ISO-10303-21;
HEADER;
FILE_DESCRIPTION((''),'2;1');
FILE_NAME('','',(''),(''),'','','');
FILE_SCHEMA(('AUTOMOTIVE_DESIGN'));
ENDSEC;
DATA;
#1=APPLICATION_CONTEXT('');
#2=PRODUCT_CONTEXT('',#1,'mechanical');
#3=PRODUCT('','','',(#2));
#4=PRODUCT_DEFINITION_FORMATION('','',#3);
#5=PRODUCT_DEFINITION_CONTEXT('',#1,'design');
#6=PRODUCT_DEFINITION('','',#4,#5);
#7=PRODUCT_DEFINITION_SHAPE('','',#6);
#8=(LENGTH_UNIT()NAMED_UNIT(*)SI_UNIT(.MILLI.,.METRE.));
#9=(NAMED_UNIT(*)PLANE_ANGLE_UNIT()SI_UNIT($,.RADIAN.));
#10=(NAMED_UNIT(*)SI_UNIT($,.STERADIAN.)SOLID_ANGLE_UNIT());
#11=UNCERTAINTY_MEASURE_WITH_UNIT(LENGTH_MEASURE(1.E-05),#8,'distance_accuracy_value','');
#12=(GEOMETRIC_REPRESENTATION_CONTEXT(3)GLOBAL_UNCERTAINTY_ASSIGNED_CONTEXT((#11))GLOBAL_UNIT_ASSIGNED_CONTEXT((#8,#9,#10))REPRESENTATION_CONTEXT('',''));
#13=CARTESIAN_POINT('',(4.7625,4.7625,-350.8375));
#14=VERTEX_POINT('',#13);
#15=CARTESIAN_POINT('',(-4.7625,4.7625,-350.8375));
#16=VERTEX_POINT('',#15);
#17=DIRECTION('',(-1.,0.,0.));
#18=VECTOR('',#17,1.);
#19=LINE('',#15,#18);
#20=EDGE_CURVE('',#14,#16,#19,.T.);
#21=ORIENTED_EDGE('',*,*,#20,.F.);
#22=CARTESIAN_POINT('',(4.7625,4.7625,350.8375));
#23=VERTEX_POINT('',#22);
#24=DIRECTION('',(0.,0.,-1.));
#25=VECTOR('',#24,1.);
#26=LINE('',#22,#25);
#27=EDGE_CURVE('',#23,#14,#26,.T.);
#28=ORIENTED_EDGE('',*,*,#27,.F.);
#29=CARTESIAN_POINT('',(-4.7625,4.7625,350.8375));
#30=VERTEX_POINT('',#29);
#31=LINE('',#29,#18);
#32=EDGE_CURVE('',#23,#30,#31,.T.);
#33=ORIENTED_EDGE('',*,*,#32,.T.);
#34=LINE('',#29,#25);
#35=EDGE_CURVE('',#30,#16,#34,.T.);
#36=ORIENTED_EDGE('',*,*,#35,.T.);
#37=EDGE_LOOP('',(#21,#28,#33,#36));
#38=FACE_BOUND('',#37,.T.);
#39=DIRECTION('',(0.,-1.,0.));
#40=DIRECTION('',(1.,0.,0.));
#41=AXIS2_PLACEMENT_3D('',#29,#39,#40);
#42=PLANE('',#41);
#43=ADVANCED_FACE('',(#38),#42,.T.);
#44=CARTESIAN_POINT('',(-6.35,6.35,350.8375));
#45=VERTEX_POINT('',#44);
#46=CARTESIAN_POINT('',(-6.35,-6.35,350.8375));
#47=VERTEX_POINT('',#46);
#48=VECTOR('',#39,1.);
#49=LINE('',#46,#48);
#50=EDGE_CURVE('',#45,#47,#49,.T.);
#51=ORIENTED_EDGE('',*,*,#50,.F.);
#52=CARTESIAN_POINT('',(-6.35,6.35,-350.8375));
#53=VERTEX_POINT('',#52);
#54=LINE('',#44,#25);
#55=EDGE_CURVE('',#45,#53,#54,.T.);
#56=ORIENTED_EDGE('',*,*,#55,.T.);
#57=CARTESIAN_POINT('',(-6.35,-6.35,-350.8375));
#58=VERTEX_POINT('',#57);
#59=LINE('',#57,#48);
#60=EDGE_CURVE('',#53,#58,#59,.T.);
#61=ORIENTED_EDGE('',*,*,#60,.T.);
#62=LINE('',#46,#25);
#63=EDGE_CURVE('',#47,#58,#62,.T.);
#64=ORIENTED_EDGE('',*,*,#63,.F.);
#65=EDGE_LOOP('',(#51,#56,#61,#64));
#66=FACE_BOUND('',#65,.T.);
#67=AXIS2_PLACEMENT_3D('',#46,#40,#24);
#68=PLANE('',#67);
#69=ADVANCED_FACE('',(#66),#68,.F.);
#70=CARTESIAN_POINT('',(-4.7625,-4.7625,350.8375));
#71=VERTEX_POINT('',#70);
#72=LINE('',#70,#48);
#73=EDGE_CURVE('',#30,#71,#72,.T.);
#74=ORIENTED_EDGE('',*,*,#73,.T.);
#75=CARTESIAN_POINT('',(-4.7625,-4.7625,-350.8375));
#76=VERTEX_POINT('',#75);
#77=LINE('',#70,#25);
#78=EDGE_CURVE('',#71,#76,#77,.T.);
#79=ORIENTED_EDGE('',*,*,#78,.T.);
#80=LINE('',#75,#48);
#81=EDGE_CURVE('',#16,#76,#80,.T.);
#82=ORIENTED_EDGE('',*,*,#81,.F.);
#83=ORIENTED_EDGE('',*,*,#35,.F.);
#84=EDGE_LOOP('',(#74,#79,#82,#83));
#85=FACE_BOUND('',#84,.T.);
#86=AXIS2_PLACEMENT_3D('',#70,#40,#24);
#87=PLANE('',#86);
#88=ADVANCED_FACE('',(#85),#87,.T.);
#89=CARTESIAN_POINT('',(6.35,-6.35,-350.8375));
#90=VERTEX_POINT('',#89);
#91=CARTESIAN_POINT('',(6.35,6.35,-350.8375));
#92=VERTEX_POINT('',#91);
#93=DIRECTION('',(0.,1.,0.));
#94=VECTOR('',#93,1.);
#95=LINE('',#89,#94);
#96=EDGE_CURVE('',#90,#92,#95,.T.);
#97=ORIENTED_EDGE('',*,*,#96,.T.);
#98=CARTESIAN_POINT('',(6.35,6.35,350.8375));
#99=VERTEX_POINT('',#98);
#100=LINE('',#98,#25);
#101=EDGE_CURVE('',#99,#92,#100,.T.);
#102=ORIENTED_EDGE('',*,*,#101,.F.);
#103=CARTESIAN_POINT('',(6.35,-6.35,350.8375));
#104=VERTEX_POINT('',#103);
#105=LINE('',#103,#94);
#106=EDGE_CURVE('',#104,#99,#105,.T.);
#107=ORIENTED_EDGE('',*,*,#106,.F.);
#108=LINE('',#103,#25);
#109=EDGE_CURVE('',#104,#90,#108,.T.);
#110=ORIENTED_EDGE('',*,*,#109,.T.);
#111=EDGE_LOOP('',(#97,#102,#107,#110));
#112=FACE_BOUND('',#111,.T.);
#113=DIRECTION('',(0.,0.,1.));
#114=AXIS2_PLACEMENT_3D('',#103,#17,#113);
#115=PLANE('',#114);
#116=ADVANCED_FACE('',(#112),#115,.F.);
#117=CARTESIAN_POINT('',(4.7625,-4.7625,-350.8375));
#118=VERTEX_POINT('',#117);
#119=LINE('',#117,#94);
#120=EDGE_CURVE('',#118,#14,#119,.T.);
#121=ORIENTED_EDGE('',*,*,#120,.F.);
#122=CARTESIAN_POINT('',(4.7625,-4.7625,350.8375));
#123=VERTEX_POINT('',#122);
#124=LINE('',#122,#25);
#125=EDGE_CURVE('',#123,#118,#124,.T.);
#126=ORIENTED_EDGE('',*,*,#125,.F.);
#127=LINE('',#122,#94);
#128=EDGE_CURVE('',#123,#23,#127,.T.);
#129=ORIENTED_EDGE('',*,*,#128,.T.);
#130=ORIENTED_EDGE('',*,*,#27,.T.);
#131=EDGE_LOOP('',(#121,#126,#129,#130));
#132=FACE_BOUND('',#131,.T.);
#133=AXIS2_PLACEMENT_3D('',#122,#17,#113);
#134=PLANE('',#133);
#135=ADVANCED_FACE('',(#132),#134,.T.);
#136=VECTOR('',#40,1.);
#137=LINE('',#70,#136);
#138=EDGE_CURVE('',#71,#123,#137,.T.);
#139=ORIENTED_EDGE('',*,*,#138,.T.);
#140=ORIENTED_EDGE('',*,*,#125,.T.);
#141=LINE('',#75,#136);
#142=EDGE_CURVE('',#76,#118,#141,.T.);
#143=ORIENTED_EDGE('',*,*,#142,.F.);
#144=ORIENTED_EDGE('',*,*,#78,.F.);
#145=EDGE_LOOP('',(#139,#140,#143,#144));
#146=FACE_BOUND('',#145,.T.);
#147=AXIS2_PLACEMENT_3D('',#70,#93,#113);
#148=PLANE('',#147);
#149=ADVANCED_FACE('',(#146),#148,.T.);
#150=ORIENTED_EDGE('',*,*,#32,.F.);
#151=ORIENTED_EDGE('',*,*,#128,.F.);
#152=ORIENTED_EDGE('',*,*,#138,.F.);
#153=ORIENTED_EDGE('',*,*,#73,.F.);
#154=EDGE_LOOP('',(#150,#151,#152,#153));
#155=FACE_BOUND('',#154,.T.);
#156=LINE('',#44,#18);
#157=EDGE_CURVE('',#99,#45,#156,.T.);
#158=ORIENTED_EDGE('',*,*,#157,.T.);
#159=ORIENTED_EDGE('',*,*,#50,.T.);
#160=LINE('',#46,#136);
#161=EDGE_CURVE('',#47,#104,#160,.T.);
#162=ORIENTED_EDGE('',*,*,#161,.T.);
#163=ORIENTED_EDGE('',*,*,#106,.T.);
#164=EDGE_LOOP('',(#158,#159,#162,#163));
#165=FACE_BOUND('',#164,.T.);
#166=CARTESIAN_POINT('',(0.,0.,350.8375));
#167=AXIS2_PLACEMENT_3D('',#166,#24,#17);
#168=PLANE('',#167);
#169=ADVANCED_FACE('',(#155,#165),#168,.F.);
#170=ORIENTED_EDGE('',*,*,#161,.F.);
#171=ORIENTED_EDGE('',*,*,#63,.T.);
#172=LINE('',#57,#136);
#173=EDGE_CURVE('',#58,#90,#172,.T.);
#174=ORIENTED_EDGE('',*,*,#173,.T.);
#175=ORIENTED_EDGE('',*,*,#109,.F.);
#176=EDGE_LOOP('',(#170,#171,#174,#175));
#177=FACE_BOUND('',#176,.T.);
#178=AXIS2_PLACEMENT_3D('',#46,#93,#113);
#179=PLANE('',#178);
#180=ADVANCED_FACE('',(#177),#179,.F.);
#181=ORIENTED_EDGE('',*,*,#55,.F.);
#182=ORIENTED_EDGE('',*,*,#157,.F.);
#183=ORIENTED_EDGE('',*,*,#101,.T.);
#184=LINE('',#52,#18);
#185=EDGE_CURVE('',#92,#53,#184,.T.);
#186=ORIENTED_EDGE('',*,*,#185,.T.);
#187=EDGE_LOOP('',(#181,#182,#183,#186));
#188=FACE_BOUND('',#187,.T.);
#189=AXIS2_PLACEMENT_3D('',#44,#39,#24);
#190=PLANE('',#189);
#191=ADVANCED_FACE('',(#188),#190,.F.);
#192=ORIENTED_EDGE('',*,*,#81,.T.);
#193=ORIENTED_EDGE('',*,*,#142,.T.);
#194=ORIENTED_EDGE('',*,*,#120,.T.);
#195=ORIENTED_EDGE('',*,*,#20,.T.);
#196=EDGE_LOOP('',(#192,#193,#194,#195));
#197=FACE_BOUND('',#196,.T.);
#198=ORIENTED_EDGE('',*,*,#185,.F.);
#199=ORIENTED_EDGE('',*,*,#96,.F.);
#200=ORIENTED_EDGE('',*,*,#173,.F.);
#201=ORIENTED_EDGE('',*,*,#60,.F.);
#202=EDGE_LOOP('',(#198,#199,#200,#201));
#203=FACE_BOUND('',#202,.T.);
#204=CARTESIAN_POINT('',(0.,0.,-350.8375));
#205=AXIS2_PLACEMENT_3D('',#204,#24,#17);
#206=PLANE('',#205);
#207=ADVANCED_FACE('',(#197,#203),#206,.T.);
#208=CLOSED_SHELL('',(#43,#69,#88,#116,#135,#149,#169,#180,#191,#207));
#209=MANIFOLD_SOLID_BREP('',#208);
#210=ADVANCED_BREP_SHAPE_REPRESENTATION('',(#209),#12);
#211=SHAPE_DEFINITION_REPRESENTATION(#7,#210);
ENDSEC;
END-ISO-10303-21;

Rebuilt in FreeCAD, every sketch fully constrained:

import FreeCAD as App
import Part
import Sketcher
from FreeCAD import Vector
Q = App.Units.Quantity

doc = App.newDocument("Part")
body = doc.addObject("PartDesign::Body", "Body")

sketch1 = doc.addObject("Sketcher::SketchObject", "Sketch")
body.addObject(sketch1)
sketch1.AttachmentSupport = (doc.XY_Plane, [""])
sketch1.MapMode = "FlatFace"
sketch1.addGeometry([
    Part.LineSegment(Vector(-6, 6, 0), Vector(-6, -6, 0)),
    Part.LineSegment(Vector(-6, -6, 0), Vector(6, -6, 0)),
    Part.LineSegment(Vector(6, -6, 0), Vector(6, 6, 0)),
    Part.LineSegment(Vector(6, 6, 0), Vector(-6, 6, 0)),
    Part.LineSegment(Vector(5, -5, 0), Vector(-5, -5, 0)),
    Part.LineSegment(Vector(-5, -5, 0), Vector(-5, 5, 0)),
    Part.LineSegment(Vector(-5, 5, 0), Vector(5, 5, 0)),
    Part.LineSegment(Vector(5, 5, 0), Vector(5, -5, 0)),
], False)
sketch1.addConstraint([
    Sketcher.Constraint("Coincident", 0, 2, 1, 1),
    Sketcher.Constraint("Coincident", 1, 2, 2, 1),
    Sketcher.Constraint("Coincident", 2, 2, 3, 1),
    Sketcher.Constraint("Coincident", 3, 2, 0, 1),
    Sketcher.Constraint("Coincident", 4, 2, 5, 1),
    Sketcher.Constraint("Coincident", 5, 2, 6, 1),
    Sketcher.Constraint("Coincident", 6, 2, 7, 1),
    Sketcher.Constraint("Coincident", 7, 2, 4, 1),
    Sketcher.Constraint("Vertical", 0),
    Sketcher.Constraint("Horizontal", 1),
    Sketcher.Constraint("Vertical", 2),
    Sketcher.Constraint("Horizontal", 3),
    Sketcher.Constraint("Horizontal", 4),
    Sketcher.Constraint("Vertical", 5),
    Sketcher.Constraint("Horizontal", 6),
    Sketcher.Constraint("Vertical", 7),
    Sketcher.Constraint("Symmetric", 0, 2, 2, 2, -1, 1),
    Sketcher.Constraint("Symmetric", 4, 2, 6, 2, -1, 1),
    Sketcher.Constraint("Equal", 3, 0),
    Sketcher.Constraint("Equal", 6, 5),
    Sketcher.Constraint("DistanceX", 1, 1, 1, 2, Q("0.5 in")),
    Sketcher.Constraint("DistanceX", 4, 2, 4, 1, Q("0.375 in")),
])
pad1 = doc.addObject("PartDesign::Pad", "Pad")
body.addObject(pad1)
pad1.Profile = sketch1
pad1.Length = Q("27.625 in")
pad1.Midplane = True

doc.recompute()
